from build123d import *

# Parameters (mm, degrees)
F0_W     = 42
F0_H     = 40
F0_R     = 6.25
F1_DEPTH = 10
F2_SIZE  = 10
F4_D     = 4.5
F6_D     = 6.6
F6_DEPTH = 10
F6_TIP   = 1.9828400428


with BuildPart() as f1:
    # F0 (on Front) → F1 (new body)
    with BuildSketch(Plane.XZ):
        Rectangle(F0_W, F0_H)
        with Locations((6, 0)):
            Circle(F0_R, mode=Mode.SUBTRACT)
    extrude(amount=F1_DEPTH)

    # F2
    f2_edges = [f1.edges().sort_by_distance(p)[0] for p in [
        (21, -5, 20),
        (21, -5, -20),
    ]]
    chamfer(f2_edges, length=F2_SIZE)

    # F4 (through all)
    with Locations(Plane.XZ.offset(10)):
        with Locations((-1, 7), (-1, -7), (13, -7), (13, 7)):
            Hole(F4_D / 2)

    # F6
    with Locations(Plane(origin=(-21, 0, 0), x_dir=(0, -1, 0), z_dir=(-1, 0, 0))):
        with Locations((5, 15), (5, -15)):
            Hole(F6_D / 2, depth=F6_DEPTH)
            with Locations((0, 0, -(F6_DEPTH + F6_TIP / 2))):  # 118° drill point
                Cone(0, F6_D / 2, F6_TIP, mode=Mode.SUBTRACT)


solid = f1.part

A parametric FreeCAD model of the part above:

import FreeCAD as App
import Part
import Sketcher


def edges_at(feature, points):
    """Names of the edges that pass closest to the given points."""
    edges = feature.Shape.Edges
    near = lambda p: min(range(len(edges)), key=lambda i: edges[i].distToShape(Part.Vertex(*p))[0])
    return sorted({f"Edge{near(p) + 1}" for p in points})


def add_polygon(sketch, points):
    """Adds a closed chain of lines whose ends are joined by coincident constraints."""
    first, n = sketch.GeometryCount, len(points)
    for a, b in zip(points, points[1:] + points[:1]):
        sketch.addGeometry(Part.LineSegment(App.Vector(*a, 0), App.Vector(*b, 0)), False)
    for i in range(n):
        sketch.addConstraint(Sketcher.Constraint("Coincident", first + i, 2, first + (i + 1) % n, 1))

doc = App.newDocument("Part")
body = doc.addObject("PartDesign::Body", "Body")

# Sketch on XZ plane
sketch1 = doc.addObject("Sketcher::SketchObject", "Sketch")
body.addObject(sketch1)
sketch1.AttachmentSupport = (doc.XZ_Plane, [""])
sketch1.MapMode = "FlatFace"
add_polygon(sketch1, [(-21, 20), (-21, -20), (21, -20), (21, 20)])  # lines 0-3
sketch1.addGeometry(Part.Circle(App.Vector(6, 0, 0), App.Vector(0, 0, 1), 6), False)  # 4
sketch1.addConstraint([
    Sketcher.Constraint("Vertical", 0),
    Sketcher.Constraint("Horizontal", 1),
    Sketcher.Constraint("Vertical", 2),
    Sketcher.Constraint("Horizontal", 3),
    Sketcher.Constraint("Symmetric", 0, 2, 2, 2, -1, 1),
    Sketcher.Constraint("PointOnObject", 4, 3, -1),
    Sketcher.Constraint("Diameter", 4, 12.5),
    Sketcher.Constraint("DistanceX", 1, 1, 1, 2, 42.0),
    Sketcher.Constraint("DistanceY", 0, 2, 0, 1, 40.0),
    Sketcher.Constraint("DistanceX", -1, 1, 4, 3, 6.0),
])
pad1 = doc.addObject("PartDesign::Pad", "Pad")
body.addObject(pad1)
pad1.Profile = sketch1
pad1.Length = 10
doc.recompute()

chamfer = doc.addObject("PartDesign::Chamfer", "Chamfer")
body.addObject(chamfer)
chamfer.Base = (pad1, edges_at(pad1, [(21, -5, 20), (21, -5, -20)]))
chamfer.Size = 10

# Sketch on XZ plane
sketch2 = doc.addObject("Sketcher::SketchObject", "Sketch001")
body.addObject(sketch2)
sketch2.AttachmentSupport = (doc.XZ_Plane, [""])
sketch2.MapMode = "FlatFace"
sketch2.AttachmentOffset = App.Placement(App.Vector(0, 0, 10), App.Rotation())
sketch2.addGeometry([
    Part.Circle(App.Vector(-1, 7, 0), App.Vector(0, 0, 1), 2.2),
    Part.Circle(App.Vector(-1, -7, 0), App.Vector(0, 0, 1), 2.2),
    Part.Circle(App.Vector(13, -7, 0), App.Vector(0, 0, 1), 2.2),
    Part.Circle(App.Vector(13, 7, 0), App.Vector(0, 0, 1), 2.2),
], False)
sketch2.addConstraint([
    Sketcher.Constraint("Equal", 0, 1),
    Sketcher.Constraint("Equal", 1, 2),
    Sketcher.Constraint("Equal", 2, 3),
    Sketcher.Constraint("Symmetric", 0, 3, 1, 3, -1),
    Sketcher.Constraint("Symmetric", 2, 3, 3, 3, -1),
    Sketcher.Constraint("Horizontal", 1, 3, 2, 3),
    Sketcher.Constraint("Diameter", 0, 4.5),
    Sketcher.Constraint("DistanceX", 0, 3, -1, 1, 1.0),
    Sketcher.Constraint("DistanceY", -1, 1, 0, 3, 7.0),
    Sketcher.Constraint("DistanceX", -1, 1, 2, 3, 13.0),
])
doc.recompute()
hole = doc.addObject("PartDesign::Hole", "Hole")
body.addObject(hole)
hole.Profile = sketch2
hole.ThreadType = "None"
hole.Diameter = 4.5
hole.DepthType = "ThroughAll"

# Sketch on YZ plane
sketch3 = doc.addObject("Sketcher::SketchObject", "Sketch002")
body.addObject(sketch3)
sketch3.AttachmentSupport = (doc.YZ_Plane, [""])
sketch3.MapMode = "FlatFace"
sketch3.AttachmentOffset = App.Placement(App.Vector(0, 0, -21), App.Rotation())
sketch3.addGeometry([
    Part.Circle(App.Vector(-5, 15, 0), App.Vector(0, 0, 1), 3.3),
    Part.Circle(App.Vector(-5, -15, 0), App.Vector(0, 0, 1), 3.3),
], False)
sketch3.addConstraint([
    Sketcher.Constraint("Equal", 0, 1),
    Sketcher.Constraint("Symmetric", 0, 3, 1, 3, -1),
    Sketcher.Constraint("Diameter", 0, 6.6),
    Sketcher.Constraint("DistanceX", 0, 3, -1, 1, 5.0),
    Sketcher.Constraint("DistanceY", -1, 1, 0, 3, 15.0),
])
doc.recompute()
hole2 = doc.addObject("PartDesign::Hole", "Hole001")
body.addObject(hole2)
hole2.Profile = sketch3
hole2.ThreadType = "None"
hole2.Diameter = 6.6
hole2.DepthType = "Dimension"
hole2.Depth = 10
hole2.DrillPoint = "Angled"
hole2.DrillPointAngle = 118
hole2.Reversed = True

doc.recompute()
